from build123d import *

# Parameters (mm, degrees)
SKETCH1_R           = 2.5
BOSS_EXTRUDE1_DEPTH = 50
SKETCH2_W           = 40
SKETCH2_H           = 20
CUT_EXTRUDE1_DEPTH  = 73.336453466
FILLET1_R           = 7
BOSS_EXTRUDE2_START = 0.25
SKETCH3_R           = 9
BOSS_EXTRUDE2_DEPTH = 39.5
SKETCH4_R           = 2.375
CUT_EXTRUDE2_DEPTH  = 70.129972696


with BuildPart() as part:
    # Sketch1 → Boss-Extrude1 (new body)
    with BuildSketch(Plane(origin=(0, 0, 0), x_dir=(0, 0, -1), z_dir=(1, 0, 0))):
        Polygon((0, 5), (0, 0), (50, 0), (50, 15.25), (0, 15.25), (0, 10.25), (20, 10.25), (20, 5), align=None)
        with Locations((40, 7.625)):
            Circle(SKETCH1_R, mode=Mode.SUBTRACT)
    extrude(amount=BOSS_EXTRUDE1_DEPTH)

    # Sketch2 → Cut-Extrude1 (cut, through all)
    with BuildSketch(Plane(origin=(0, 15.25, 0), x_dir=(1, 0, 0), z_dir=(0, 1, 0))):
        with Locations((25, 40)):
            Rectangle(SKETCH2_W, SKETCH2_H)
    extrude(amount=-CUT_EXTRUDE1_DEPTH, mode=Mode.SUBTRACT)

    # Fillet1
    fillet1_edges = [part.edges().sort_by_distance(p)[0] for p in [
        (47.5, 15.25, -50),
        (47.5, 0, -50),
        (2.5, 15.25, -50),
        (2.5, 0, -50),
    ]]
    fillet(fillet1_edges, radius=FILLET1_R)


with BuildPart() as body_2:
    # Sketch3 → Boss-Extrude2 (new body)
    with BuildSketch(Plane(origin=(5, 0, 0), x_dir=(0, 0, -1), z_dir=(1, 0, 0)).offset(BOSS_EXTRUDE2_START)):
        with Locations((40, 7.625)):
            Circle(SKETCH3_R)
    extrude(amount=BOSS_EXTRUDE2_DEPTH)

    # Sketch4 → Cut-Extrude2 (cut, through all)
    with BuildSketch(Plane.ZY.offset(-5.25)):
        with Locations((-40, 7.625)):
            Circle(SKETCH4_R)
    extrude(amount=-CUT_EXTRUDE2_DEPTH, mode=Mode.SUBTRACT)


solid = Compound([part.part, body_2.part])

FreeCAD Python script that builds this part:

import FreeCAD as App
import Part
import Sketcher


def edges_at(feature, points):
    """Names of the edges that pass closest to the given points."""
    edges = feature.Shape.Edges
    near = lambda p: min(range(len(edges)), key=lambda i: edges[i].distToShape(Part.Vertex(*p))[0])
    return sorted({f"Edge{near(p) + 1}" for p in points})


def add_polygon(sketch, points):
    """Adds a closed chain of lines whose ends are joined by coincident constraints."""
    first, n = sketch.GeometryCount, len(points)
    for a, b in zip(points, points[1:] + points[:1]):
        sketch.addGeometry(Part.LineSegment(App.Vector(*a, 0), App.Vector(*b, 0)), False)
    for i in range(n):
        sketch.addConstraint(Sketcher.Constraint("Coincident", first + i, 2, first + (i + 1) % n, 1))

doc = App.newDocument("Part")
body = doc.addObject("PartDesign::Body", "Body")

# Sketch on YZ plane
sketch1 = doc.addObject("Sketcher::SketchObject", "Sketch")
body.addObject(sketch1)
sketch1.AttachmentSupport = (doc.YZ_Plane, [""])
sketch1.MapMode = "FlatFace"
add_polygon(sketch1, [(5, 0), (0, 0), (0, -50), (15.2, -50), (15.2, 0), (10.2, 0), (10.2, -20), (5, -20)])  # lines 0-7
sketch1.addGeometry(Part.Circle(App.Vector(7.6, -40, 0), App.Vector(0, 0, 1), 2.5), False)  # 8
sketch1.addConstraint(Sketcher.Constraint("Horizontal", 0))
sketch1.addConstraint(Sketcher.Constraint("Vertical", 1))
sketch1.addConstraint(Sketcher.Constraint("Horizontal", 2))
sketch1.addConstraint(Sketcher.Constraint("Vertical", 3))
sketch1.addConstraint(Sketcher.Constraint("Horizontal", 4))
sketch1.addConstraint(Sketcher.Constraint("Vertical", 5))
sketch1.addConstraint(Sketcher.Constraint("Horizontal", 6))
sketch1.addConstraint(Sketcher.Constraint("Vertical", 7))
sketch1.addConstraint(Sketcher.Constraint("Coincident", 0, 2, -1, 1))
sketch1.addConstraint(Sketcher.Constraint("PointOnObject", 3, 2, -1))
sketch1.addConstraint(Sketcher.Constraint("Equal", 0, 4))
sketch1.addConstraint(Sketcher.Constraint("Diameter", 8, 5.0))
sketch1.addConstraint(Sketcher.Constraint("DistanceX", 0, 2, 0, 1, 5.0))
sketch1.addConstraint(Sketcher.Constraint("DistanceY", 1, 2, 1, 1, 50.0))
sketch1.addConstraint(Sketcher.Constraint("DistanceY", 5, 2, 5, 1, 20.0))
sketch1.addConstraint(Sketcher.Constraint("DistanceY", 8, 3, -1, 1, 40.0))
sketch1.addConstraint(Sketcher.Constraint("DistanceX", 2, 1, 2, 2, 15.25))
sketch1.addConstraint(Sketcher.Constraint("DistanceX", -1, 1, 8, 3, 7.625))
pad1 = doc.addObject("PartDesign::Pad", "Pad")
body.addObject(pad1)
pad1.Profile = sketch1
pad1.Length = 50

# Sketch on XZ plane
sketch2 = doc.addObject("Sketcher::SketchObject", "Sketch001")
body.addObject(sketch2)
sketch2.AttachmentSupport = (doc.XZ_Plane, [""])
sketch2.MapMode = "FlatFace"
sketch2.AttachmentOffset = App.Placement(App.Vector(0, 0, -15.25), App.Rotation())
add_polygon(sketch2, [(5, -50), (5, -30), (45, -30), (45, -50)])  # lines 0-3
sketch2.addConstraint(Sketcher.Constraint("Vertical", 0))
sketch2.addConstraint(Sketcher.Constraint("Horizontal", 1))
sketch2.addConstraint(Sketcher.Constraint("Vertical", 2))
sketch2.addConstraint(Sketcher.Constraint("Horizontal", 3))
sketch2.addConstraint(Sketcher.Constraint("DistanceX", 1, 1, 1, 2, 40.0))
sketch2.addConstraint(Sketcher.Constraint("DistanceY", 0, 1, 0, 2, 20.0))
sketch2.addConstraint(Sketcher.Constraint("DistanceX", -1, 1, 0, 2, 5.0))
sketch2.addConstraint(Sketcher.Constraint("DistanceY", 0, 2, -1, 1, 30.0))
pocket1 = doc.addObject("PartDesign::Pocket", "Pocket")
body.addObject(pocket1)
pocket1.Profile = sketch2
pocket1.Type = "ThroughAll"
pocket1.Reversed = True
doc.recompute()

fillet = doc.addObject("PartDesign::Fillet", "Fillet")
body.addObject(fillet)
fillet.Base = (pocket1, edges_at(pocket1, [
    (47.5, 15.25, -50),
    (47.5, 0, -50),
    (2.5, 15.25, -50),
    (2.5, 0, -50),
]))
fillet.Radius = 7
body2 = doc.addObject("PartDesign::Body", "Body001")

# Sketch on YZ plane
sketch3 = doc.addObject("Sketcher::SketchObject", "Sketch002")
body2.addObject(sketch3)
sketch3.AttachmentSupport = (doc.getObject("YZ_Plane001"), [""])
sketch3.MapMode = "FlatFace"
sketch3.AttachmentOffset = App.Placement(App.Vector(0, 0, 5.25), App.Rotation())
sketch3.addGeometry(Part.Circle(App.Vector(8, -40, 0), App.Vector(0, 0, 1), 9), False)
sketch3.addConstraint(Sketcher.Constraint("Diameter", 0, 18.0))
sketch3.addConstraint(Sketcher.Constraint("DistanceY", 0, 3, -1, 1, 40.0))
sketch3.addConstraint(Sketcher.Constraint("DistanceX", -1, 1, 0, 3, 7.625))
pad2 = doc.addObject("PartDesign::Pad", "Pad001")
body2.addObject(pad2)
pad2.Profile = sketch3
pad2.Length = 39.5

# Sketch on YZ plane
sketch4 = doc.addObject("Sketcher::SketchObject", "Sketch003")
body2.addObject(sketch4)
sketch4.AttachmentSupport = (doc.getObject("YZ_Plane001"), [""])
sketch4.MapMode = "FlatFace"
sketch4.AttachmentOffset = App.Placement(App.Vector(0, 0, 5.25), App.Rotation())
sketch4.addGeometry(Part.Circle(App.Vector(7.6, -40, 0), App.Vector(0, 0, 1), 2.4), False)
sketch4.addConstraint(Sketcher.Constraint("Diameter", 0, 4.75))
sketch4.addConstraint(Sketcher.Constraint("DistanceY", 0, 3, -1, 1, 40.0))
sketch4.addConstraint(Sketcher.Constraint("DistanceX", -1, 1, 0, 3, 7.625))
pocket2 = doc.addObject("PartDesign::Pocket", "Pocket001")
body2.addObject(pocket2)
pocket2.Profile = sketch4
pocket2.Type = "ThroughAll"
pocket2.Reversed = True

doc.recompute()
